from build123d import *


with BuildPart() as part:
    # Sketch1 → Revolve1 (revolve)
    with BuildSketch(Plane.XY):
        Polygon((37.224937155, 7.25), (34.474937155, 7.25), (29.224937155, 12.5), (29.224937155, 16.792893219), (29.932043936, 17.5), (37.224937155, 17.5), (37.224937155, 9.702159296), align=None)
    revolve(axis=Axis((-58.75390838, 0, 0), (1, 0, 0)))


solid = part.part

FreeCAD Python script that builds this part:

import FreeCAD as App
import Part
import Sketcher
from FreeCAD import Vector
Q = App.Units.Quantity

doc = App.newDocument("Part")
params = doc.addObject("Spreadsheet::Sheet", "Params")
for row, (alias, value) in enumerate([
    ("sketch1_length", "1 mm"),
    ("sketch1_width", "2.75 mm"),
    ("revolution_angle", "360 deg"),
], start=1):
    params.set(f"A{row}", alias)
    params.set(f"B{row}", "=" + value)
    params.setAlias(f"B{row}", alias)

body = doc.addObject("PartDesign::Body", "Body")

# Sketch on XY plane
sketch1 = body.newObject("Sketcher::SketchObject", "Sketch")
sketch1.AttachmentSupport = (doc.getObject("XY_Plane"), [""])
sketch1.MapMode = "FlatFace"
sketch1.addGeometry([
    Part.LineSegment(Vector(34.5, 7.2, 0), Vector(37.2, 7.2, 0)),  # 0
    Part.LineSegment(Vector(37.2, 7.2, 0), Vector(37.2, 17.5, 0)),  # 1
    Part.LineSegment(Vector(37.2, 17.5, 0), Vector(29.9, 17.5, 0)),  # 2
    Part.LineSegment(Vector(29.9, 17.5, 0), Vector(29.2, 16.8, 0)),  # 3
    Part.LineSegment(Vector(29.2, 16.8, 0), Vector(29.2, 12.5, 0)),  # 4
    Part.LineSegment(Vector(29.2, 12.5, 0), Vector(34.5, 7.2, 0)),  # 5
], False)
sketch1.addConstraint([
    Sketcher.Constraint("Coincident", 0, 2, 1, 1),
    Sketcher.Constraint("Coincident", 1, 2, 2, 1),
    Sketcher.Constraint("Coincident", 2, 2, 3, 1),
    Sketcher.Constraint("Coincident", 3, 2, 4, 1),
    Sketcher.Constraint("Coincident", 4, 2, 5, 1),
    Sketcher.Constraint("Coincident", 5, 2, 0, 1),
    Sketcher.Constraint("Horizontal", 0),
    Sketcher.Constraint("Vertical", 1),
    Sketcher.Constraint("Horizontal", 2),
    Sketcher.Constraint("Vertical", 4),
    Sketcher.Constraint("Perpendicular", 3, 5),
    Sketcher.Constraint("Angle", 3, Q("-135 deg")),
    Sketcher.Constraint("Distance", 3, 1.0),
    Sketcher.Constraint("DistanceX", 3, 2, 1, 2, 8.0),
    Sketcher.Constraint("DistanceY", 4, 2, 2, 2, 5.0),
    Sketcher.Constraint("DistanceX", 0, 1, 0, 2, 2.75),
    Sketcher.Constraint("DistanceY", -1, 1, 1, 2, 17.5),
    Sketcher.Constraint("DistanceX", -1, 1, 0, 2, 37.224937),
])
sketch1.setExpression("Constraints[12]", "Params.sketch1_length")
sketch1.setExpression("Constraints[15]", "Params.sketch1_width")
revolution = body.newObject("PartDesign::Revolution", "Revolution")
revolution.Profile = sketch1
revolution.ReferenceAxis = (sketch1, ["H_Axis"])
revolution.setExpression("Angle", "Params.revolution_angle")

doc.recompute()
